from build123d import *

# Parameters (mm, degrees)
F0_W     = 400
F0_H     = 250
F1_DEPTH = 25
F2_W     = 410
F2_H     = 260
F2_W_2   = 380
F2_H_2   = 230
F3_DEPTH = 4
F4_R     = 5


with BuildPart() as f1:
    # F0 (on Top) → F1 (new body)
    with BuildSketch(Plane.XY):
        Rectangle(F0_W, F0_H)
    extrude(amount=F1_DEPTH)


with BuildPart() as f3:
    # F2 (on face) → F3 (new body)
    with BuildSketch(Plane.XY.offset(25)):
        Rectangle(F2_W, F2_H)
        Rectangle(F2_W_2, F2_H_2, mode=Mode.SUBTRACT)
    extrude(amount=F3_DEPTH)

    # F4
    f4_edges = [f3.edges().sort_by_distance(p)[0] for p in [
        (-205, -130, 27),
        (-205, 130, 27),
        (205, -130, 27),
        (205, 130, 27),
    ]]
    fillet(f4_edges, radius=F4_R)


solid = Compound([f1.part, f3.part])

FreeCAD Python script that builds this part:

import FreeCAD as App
import Part
import Sketcher

V = App.Vector
Q = App.Units.Quantity


def edges_at(feature, points):
    """Names of the edges that pass closest to the given points."""
    edges = feature.Shape.Edges
    near = lambda p: min(range(len(edges)), key=lambda i: edges[i].distToShape(Part.Vertex(*p))[0])
    return sorted({f"Edge{near(p) + 1}" for p in points})


def add_polygon(sketch, points):
    """Adds a closed chain of lines whose ends are joined by coincident constraints."""
    first, n = sketch.GeometryCount, len(points)
    for a, b in zip(points, points[1:] + points[:1]):
        sketch.addGeometry(Part.LineSegment(App.Vector(*a, 0), App.Vector(*b, 0)), False)
    for i in range(n):
        sketch.addConstraint(Sketcher.Constraint("Coincident", first + i, 2, first + (i + 1) % n, 1))

doc = App.newDocument("Part")
body = doc.addObject("PartDesign::Body", "Body")

sketch1 = body.newObject("Sketcher::SketchObject", "Sketch")
sketch1.AttachmentSupport = (doc.getObject("XY_Plane"), [""])
sketch1.MapMode = "FlatFace"
add_polygon(sketch1, [(-200, 125), (-200, -125), (200, -125), (200, 125)])
sketch1.addConstraint(Sketcher.Constraint("Vertical", 0))
sketch1.addConstraint(Sketcher.Constraint("Horizontal", 1))
sketch1.addConstraint(Sketcher.Constraint("Vertical", 2))
sketch1.addConstraint(Sketcher.Constraint("Horizontal", 3))
sketch1.addConstraint(Sketcher.Constraint("Symmetric", 0, 2, 2, 2, -1, 1))
sketch1.addConstraint(Sketcher.Constraint("DistanceX", 1, 1, 1, 2, Q("400 mm")))
sketch1.addConstraint(Sketcher.Constraint("DistanceY", 0, 2, 0, 1, Q("250 mm")))
pad1 = body.newObject("PartDesign::Pad", "Pad")
pad1.Profile = sketch1
pad1.Length = 25
body2 = doc.addObject("PartDesign::Body", "Body001")

sketch2 = body2.newObject("Sketcher::SketchObject", "Sketch001")
sketch2.AttachmentSupport = (doc.getObject("XY_Plane001"), [""])
sketch2.MapMode = "FlatFace"
sketch2.AttachmentOffset = App.Placement(V(0, 0, 25), App.Rotation())
add_polygon(sketch2, [(-205, 130), (-205, -130), (205, -130), (205, 130)])
add_polygon(sketch2, [(190, -115), (-190, -115), (-190, 115), (190, 115)])
sketch2.addConstraint(Sketcher.Constraint("Vertical", 0))
sketch2.addConstraint(Sketcher.Constraint("Horizontal", 1))
sketch2.addConstraint(Sketcher.Constraint("Vertical", 2))
sketch2.addConstraint(Sketcher.Constraint("Horizontal", 3))
sketch2.addConstraint(Sketcher.Constraint("Horizontal", 4))
sketch2.addConstraint(Sketcher.Constraint("Vertical", 5))
sketch2.addConstraint(Sketcher.Constraint("Horizontal", 6))
sketch2.addConstraint(Sketcher.Constraint("Vertical", 7))
sketch2.addConstraint(Sketcher.Constraint("Symmetric", 0, 2, 2, 2, -1, 1))
sketch2.addConstraint(Sketcher.Constraint("Symmetric", 4, 2, 6, 2, -1, 1))
sketch2.addConstraint(Sketcher.Constraint("DistanceX", 1, 1, 1, 2, Q("410 mm")))
sketch2.addConstraint(Sketcher.Constraint("DistanceX", 4, 2, 4, 1, Q("380 mm")))
sketch2.addConstraint(Sketcher.Constraint("DistanceY", 0, 2, 0, 1, Q("260 mm")))
sketch2.addConstraint(Sketcher.Constraint("DistanceY", 5, 1, 5, 2, Q("230 mm")))
pad2 = body2.newObject("PartDesign::Pad", "Pad001")
pad2.Profile = sketch2
pad2.Length = 4
doc.recompute()

fillet = body2.newObject("PartDesign::Fillet", "Fillet")
fillet.Base = (pad2, edges_at(pad2, [
    (-205, -130, 27),
    (-205, 130, 27),
    (205, -130, 27),
    (205, 130, 27),
]))
fillet.Radius = 5

doc.recompute()
